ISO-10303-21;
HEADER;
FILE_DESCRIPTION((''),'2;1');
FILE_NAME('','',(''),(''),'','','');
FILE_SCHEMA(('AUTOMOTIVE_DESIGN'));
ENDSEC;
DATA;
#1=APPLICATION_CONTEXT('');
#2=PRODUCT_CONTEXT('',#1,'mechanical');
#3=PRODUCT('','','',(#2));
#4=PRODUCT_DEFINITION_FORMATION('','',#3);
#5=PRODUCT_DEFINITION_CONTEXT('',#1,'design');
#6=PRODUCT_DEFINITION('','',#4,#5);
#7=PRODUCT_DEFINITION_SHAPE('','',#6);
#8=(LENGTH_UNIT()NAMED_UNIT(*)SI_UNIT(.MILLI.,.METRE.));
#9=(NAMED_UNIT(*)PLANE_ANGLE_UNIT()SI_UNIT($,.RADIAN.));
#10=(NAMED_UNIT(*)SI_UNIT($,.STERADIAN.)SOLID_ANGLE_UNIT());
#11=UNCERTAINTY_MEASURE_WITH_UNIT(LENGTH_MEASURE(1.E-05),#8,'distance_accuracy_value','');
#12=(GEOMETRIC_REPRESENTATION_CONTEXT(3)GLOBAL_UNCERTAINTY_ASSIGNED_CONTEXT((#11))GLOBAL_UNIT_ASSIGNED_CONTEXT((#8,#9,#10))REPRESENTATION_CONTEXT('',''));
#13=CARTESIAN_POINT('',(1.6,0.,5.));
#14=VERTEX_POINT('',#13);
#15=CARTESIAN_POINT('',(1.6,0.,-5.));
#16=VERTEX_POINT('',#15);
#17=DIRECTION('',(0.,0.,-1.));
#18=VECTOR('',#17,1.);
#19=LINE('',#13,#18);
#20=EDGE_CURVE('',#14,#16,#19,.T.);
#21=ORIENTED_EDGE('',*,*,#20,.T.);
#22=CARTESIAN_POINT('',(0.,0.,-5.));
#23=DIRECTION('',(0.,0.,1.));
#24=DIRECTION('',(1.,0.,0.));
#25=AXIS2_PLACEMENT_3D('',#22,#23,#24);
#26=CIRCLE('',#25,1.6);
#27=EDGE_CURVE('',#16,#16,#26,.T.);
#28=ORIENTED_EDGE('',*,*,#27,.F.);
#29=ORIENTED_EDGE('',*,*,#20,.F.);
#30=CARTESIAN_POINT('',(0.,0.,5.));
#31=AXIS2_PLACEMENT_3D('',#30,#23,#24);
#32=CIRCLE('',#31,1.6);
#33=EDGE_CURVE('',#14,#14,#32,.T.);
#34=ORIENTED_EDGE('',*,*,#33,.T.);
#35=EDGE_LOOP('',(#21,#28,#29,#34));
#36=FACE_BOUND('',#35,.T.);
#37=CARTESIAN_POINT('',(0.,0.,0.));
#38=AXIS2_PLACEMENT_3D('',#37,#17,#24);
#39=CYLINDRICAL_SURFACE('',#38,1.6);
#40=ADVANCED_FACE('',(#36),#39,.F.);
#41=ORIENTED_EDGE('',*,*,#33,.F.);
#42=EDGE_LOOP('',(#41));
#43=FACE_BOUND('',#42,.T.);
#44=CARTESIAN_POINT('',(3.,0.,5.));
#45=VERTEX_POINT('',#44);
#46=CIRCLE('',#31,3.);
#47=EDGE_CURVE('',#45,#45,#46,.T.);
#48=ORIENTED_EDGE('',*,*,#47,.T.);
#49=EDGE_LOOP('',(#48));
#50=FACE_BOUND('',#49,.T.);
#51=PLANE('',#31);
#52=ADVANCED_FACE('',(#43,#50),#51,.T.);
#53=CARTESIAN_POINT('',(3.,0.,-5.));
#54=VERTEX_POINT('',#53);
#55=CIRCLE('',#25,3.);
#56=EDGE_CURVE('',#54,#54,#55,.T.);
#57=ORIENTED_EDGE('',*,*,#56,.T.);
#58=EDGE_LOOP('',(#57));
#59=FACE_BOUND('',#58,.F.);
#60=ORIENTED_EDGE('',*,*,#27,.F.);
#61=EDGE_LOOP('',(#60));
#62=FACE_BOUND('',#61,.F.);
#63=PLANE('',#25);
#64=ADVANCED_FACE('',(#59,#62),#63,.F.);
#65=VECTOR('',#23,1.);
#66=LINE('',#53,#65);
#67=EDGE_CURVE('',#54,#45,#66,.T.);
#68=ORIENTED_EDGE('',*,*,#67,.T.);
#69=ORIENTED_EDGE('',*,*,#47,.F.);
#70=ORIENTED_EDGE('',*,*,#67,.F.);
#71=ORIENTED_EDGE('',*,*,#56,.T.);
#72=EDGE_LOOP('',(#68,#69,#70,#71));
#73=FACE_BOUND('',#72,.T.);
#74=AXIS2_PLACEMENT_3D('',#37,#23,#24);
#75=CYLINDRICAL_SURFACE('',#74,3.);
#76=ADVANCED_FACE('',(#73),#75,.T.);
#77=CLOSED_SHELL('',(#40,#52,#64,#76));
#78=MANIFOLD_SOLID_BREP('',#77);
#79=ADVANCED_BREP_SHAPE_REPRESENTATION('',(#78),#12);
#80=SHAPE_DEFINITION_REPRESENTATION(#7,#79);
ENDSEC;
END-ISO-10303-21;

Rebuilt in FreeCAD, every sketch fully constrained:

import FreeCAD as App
import Part
import Sketcher
Q = App.Units.Quantity

doc = App.newDocument("Part")
params = doc.addObject("Spreadsheet::Sheet", "Params")
for row, (alias, value) in enumerate([
    ("sketch1_diameter", "6 mm"),
    ("sketch1_diameter2", "3.2 mm"),
    ("pad1_length", "10 mm"),
], start=1):
    params.set(f"A{row}", alias)
    params.set(f"B{row}", "=" + value)
    params.setAlias(f"B{row}", alias)

body = doc.addObject("PartDesign::Body", "Body")

sketch1 = doc.addObject("Sketcher::SketchObject", "Sketch")
body.addObject(sketch1)
sketch1.AttachmentSupport = (doc.XY_Plane, [""])
sketch1.MapMode = "FlatFace"
sketch1.addGeometry(Part.Circle(App.Vector(0, 0, 0), App.Vector(0, 0, 1), 3), False)
sketch1.addGeometry(Part.Circle(App.Vector(0, 0, 0), App.Vector(0, 0, 1), 1.6), False)
sketch1.addConstraint(Sketcher.Constraint("Coincident", 0, 3, -1, 1))
sketch1.addConstraint(Sketcher.Constraint("Coincident", 1, 3, -1, 1))
sketch1.addConstraint(Sketcher.Constraint("Diameter", 0, Q("6 mm")))
sketch1.addConstraint(Sketcher.Constraint("Diameter", 1, Q("3.2 mm")))
sketch1.setExpression("Constraints[2]", "Params.sketch1_diameter")
sketch1.setExpression("Constraints[3]", "Params.sketch1_diameter2")
pad1 = doc.addObject("PartDesign::Pad", "Pad")
body.addObject(pad1)
pad1.Profile = sketch1
pad1.setExpression("Length", "Params.pad1_length")
pad1.Midplane = True

doc.recompute()
